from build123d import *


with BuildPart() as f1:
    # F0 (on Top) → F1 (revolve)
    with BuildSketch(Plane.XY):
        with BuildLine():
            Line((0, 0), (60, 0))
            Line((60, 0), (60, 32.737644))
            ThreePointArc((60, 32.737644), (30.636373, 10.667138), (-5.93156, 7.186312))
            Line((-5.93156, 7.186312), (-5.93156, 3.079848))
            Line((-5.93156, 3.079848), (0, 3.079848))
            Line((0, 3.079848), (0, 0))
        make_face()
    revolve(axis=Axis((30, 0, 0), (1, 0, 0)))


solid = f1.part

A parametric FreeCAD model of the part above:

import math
import FreeCAD as App
import Part
import Sketcher
Q = App.Units.Quantity

doc = App.newDocument("Part")
params = doc.addObject("Spreadsheet::Sheet", "Params")
for row, (alias, value) in enumerate([
    ("sketch1_width", "60 mm"),
    ("revolution_angle", "360 deg"),
], start=1):
    params.set(f"A{row}", alias)
    params.set(f"B{row}", "=" + value)
    params.setAlias(f"B{row}", alias)

body = doc.addObject("PartDesign::Body", "Body")

sketch1 = body.newObject("Sketcher::SketchObject", "Sketch")
sketch1.AttachmentSupport = (doc.getObject("XY_Plane"), [""])
sketch1.MapMode = "FlatFace"
sketch1.addGeometry(Part.LineSegment(App.Vector(0, 0, 0), App.Vector(60, 0, 0)), False)
sketch1.addGeometry(Part.LineSegment(App.Vector(60, 0, 0), App.Vector(60, 32.7, 0)), False)
sketch1.addGeometry(Part.ArcOfCircle(Part.Circle(App.Vector(6.2, 73.8, 0), App.Vector(0, 0, 1), 67.7), math.radians(-100), math.radians(-37)), False)
sketch1.addGeometry(Part.LineSegment(App.Vector(-5.9, 7.2, 0), App.Vector(-5.9, 3.1, 0)), False)
sketch1.addGeometry(Part.LineSegment(App.Vector(-5.9, 3.1, 0), App.Vector(0, 3.1, 0)), False)
sketch1.addGeometry(Part.LineSegment(App.Vector(0, 3.1, 0), App.Vector(0, 0, 0)), False)
sketch1.addConstraint(Sketcher.Constraint("Coincident", 0, 2, 1, 1))
sketch1.addConstraint(Sketcher.Constraint("Coincident", 1, 2, 2, 2))
sketch1.addConstraint(Sketcher.Constraint("Coincident", 2, 1, 3, 1))
sketch1.addConstraint(Sketcher.Constraint("Coincident", 3, 2, 4, 1))
sketch1.addConstraint(Sketcher.Constraint("Coincident", 4, 2, 5, 1))
sketch1.addConstraint(Sketcher.Constraint("Coincident", 5, 2, 0, 1))
sketch1.addConstraint(Sketcher.Constraint("Horizontal", 0))
sketch1.addConstraint(Sketcher.Constraint("Vertical", 1))
sketch1.addConstraint(Sketcher.Constraint("Vertical", 3))
sketch1.addConstraint(Sketcher.Constraint("Horizontal", 4))
sketch1.addConstraint(Sketcher.Constraint("Vertical", 5))
sketch1.addConstraint(Sketcher.Constraint("Coincident", 5, 2, -1, 1))
sketch1.addConstraint(Sketcher.Constraint("DistanceX", 0, 1, 0, 2, Q("60 mm")))
sketch1.addConstraint(Sketcher.Constraint("Radius", 2, Q("67.680172 mm")))
sketch1.addConstraint(Sketcher.Constraint("DistanceX", 4, 1, 4, 2, Q("5.93156 mm")))
sketch1.addConstraint(Sketcher.Constraint("DistanceY", 5, 2, 5, 1, Q("3.079848 mm")))
sketch1.addConstraint(Sketcher.Constraint("DistanceY", 1, 1, 1, 2, Q("32.737644 mm")))
sketch1.addConstraint(Sketcher.Constraint("DistanceY", 3, 2, 3, 1, Q("4.106464 mm")))
sketch1.setExpression("Constraints[12]", "Params.sketch1_width")
revolution = body.newObject("PartDesign::Revolution", "Revolution")
revolution.Profile = sketch1
revolution.ReferenceAxis = (sketch1, ["H_Axis"])
revolution.setExpression("Angle", "Params.revolution_angle")

doc.recompute()
